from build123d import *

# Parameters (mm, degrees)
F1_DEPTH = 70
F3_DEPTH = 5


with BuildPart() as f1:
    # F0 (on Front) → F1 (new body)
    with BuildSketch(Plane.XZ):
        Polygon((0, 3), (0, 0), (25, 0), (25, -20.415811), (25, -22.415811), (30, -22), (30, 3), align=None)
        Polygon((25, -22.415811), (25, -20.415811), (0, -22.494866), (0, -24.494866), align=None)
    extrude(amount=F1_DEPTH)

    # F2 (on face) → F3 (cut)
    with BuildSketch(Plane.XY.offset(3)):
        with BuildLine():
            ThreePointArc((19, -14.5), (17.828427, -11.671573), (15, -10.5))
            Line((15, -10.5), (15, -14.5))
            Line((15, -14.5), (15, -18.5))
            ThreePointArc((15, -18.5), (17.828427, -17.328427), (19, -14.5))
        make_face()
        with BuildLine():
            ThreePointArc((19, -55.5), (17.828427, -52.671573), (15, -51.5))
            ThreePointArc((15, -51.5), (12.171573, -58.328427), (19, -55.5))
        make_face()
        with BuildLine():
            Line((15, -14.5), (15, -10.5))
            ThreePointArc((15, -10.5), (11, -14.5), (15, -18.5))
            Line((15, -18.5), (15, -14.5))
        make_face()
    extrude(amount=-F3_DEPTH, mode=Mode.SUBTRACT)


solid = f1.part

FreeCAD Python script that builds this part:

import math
import FreeCAD as App
import Part
import Sketcher
Q = App.Units.Quantity


def add_polygon(sketch, points):
    """Adds a closed chain of lines whose ends are joined by coincident constraints."""
    first, n = sketch.GeometryCount, len(points)
    for a, b in zip(points, points[1:] + points[:1]):
        sketch.addGeometry(Part.LineSegment(App.Vector(*a, 0), App.Vector(*b, 0)), False)
    for i in range(n):
        sketch.addConstraint(Sketcher.Constraint("Coincident", first + i, 2, first + (i + 1) % n, 1))

doc = App.newDocument("Part")
params = doc.addObject("Spreadsheet::Sheet", "Params")
for row, (alias, value) in enumerate([
    ("sketch1_width", "25 mm"),
    ("sketch1_width2", "30 mm"),
    ("sketch1_height", "3 mm"),
    ("sketch1_height2", "2 mm"),
    ("pad1_length", "70 mm"),
    ("sketch2_radius", "4 mm"),
    ("pocket1_length", "5 mm"),
], start=1):
    params.set(f"A{row}", alias)
    params.set(f"B{row}", "=" + value)
    params.setAlias(f"B{row}", alias)

body = doc.addObject("PartDesign::Body", "Body")

sketch1 = body.newObject("Sketcher::SketchObject", "Sketch")
sketch1.AttachmentSupport = (doc.getObject("XZ_Plane"), [""])
sketch1.MapMode = "FlatFace"
add_polygon(sketch1, [(0, 3), (0, 0), (25, 0), (25, -20.4), (0, -22.5), (0, -24.5), (30, -22), (30, 3)])
sketch1.addConstraint([
    Sketcher.Constraint("Vertical", 0),
    Sketcher.Constraint("Horizontal", 1),
    Sketcher.Constraint("Vertical", 2),
    Sketcher.Constraint("Vertical", 4),
    Sketcher.Constraint("Vertical", 6),
    Sketcher.Constraint("Horizontal", 7),
    Sketcher.Constraint("Coincident", 0, 2, -1, 1),
    Sketcher.Constraint("PointOnObject", 3, 2, -2),
    Sketcher.Constraint("Parallel", 3, 5),
    Sketcher.Constraint("Equal", 1, 6),
    Sketcher.Constraint("DistanceX", 1, 1, 1, 2, Q("25 mm")),
    Sketcher.Constraint("DistanceX", 7, 2, 7, 1, Q("30 mm")),
    Sketcher.Constraint("DistanceY", 0, 2, 0, 1, Q("3 mm")),
    Sketcher.Constraint("DistanceY", 4, 2, 4, 1, Q("2 mm")),
    Sketcher.Constraint("Distance", 3, Q("25.0863 mm")),
])
sketch1.setExpression("Constraints[18]", "Params.sketch1_width")
sketch1.setExpression("Constraints[19]", "Params.sketch1_width2")
sketch1.setExpression("Constraints[20]", "Params.sketch1_height")
sketch1.setExpression("Constraints[21]", "Params.sketch1_height2")
pad1 = body.newObject("PartDesign::Pad", "Pad")
pad1.Profile = sketch1
pad1.setExpression("Length", "Params.pad1_length")

sketch2 = body.newObject("Sketcher::SketchObject", "Sketch001")
sketch2.AttachmentSupport = (doc.getObject("XY_Plane"), [""])
sketch2.MapMode = "FlatFace"
sketch2.AttachmentOffset = App.Placement(App.Vector(0, 0, 3), App.Rotation())
sketch2.addGeometry([
    Part.ArcOfCircle(Part.Circle(App.Vector(15, -14.5, 0), App.Vector(0, 0, 1), 4), math.radians(0), math.radians(90)),
    Part.ArcOfCircle(Part.Circle(App.Vector(15, -14.5, 0), App.Vector(0, 0, 1), 4), math.radians(90), math.radians(270)),
    Part.ArcOfCircle(Part.Circle(App.Vector(15, -14.5, 0), App.Vector(0, 0, 1), 4), math.radians(-90), math.radians(0)),
    Part.ArcOfCircle(Part.Circle(App.Vector(15, -55.5, 0), App.Vector(0, 0, 1), 4), math.radians(0), math.radians(90)),
    Part.ArcOfCircle(Part.Circle(App.Vector(15, -55.5, 0), App.Vector(0, 0, 1), 4), math.radians(90), math.radians(360)),
], False)
sketch2.addConstraint([
    Sketcher.Constraint("Tangent", 0, 2, 1, 1),
    Sketcher.Constraint("Tangent", 1, 2, 2, 1),
    Sketcher.Constraint("Tangent", 2, 2, 0, 1),
    Sketcher.Constraint("Tangent", 3, 1, 4, 2),
    Sketcher.Constraint("Coincident", 4, 1, 3, 2),
    Sketcher.Constraint("Equal", 2, 3),
    Sketcher.Constraint("Horizontal", 1, 3, 2, 2),
    Sketcher.Constraint("Horizontal", 4, 3, 3, 1),
    Sketcher.Constraint("Vertical", 2, 3, 3, 3),
    Sketcher.Constraint("Vertical", 4, 3, 0, 2),
    Sketcher.Constraint("Vertical", 0, 2, 1, 2),
    Sketcher.Constraint("Vertical", 1, 2, 4, 1),
    Sketcher.Constraint("Radius", 0, Q("4 mm")),
    Sketcher.Constraint("DistanceX", -1, 1, 0, 3, Q("15 mm")),
    Sketcher.Constraint("DistanceY", 3, 3, 0, 3, Q("41 mm")),
    Sketcher.Constraint("DistanceY", 0, 3, -1, 1, Q("14.5 mm")),
])
sketch2.setExpression("Constraints[12]", "Params.sketch2_radius")
pocket1 = body.newObject("PartDesign::Pocket", "Pocket")
pocket1.Profile = sketch2
pocket1.setExpression("Length", "Params.pocket1_length")

doc.recompute()
